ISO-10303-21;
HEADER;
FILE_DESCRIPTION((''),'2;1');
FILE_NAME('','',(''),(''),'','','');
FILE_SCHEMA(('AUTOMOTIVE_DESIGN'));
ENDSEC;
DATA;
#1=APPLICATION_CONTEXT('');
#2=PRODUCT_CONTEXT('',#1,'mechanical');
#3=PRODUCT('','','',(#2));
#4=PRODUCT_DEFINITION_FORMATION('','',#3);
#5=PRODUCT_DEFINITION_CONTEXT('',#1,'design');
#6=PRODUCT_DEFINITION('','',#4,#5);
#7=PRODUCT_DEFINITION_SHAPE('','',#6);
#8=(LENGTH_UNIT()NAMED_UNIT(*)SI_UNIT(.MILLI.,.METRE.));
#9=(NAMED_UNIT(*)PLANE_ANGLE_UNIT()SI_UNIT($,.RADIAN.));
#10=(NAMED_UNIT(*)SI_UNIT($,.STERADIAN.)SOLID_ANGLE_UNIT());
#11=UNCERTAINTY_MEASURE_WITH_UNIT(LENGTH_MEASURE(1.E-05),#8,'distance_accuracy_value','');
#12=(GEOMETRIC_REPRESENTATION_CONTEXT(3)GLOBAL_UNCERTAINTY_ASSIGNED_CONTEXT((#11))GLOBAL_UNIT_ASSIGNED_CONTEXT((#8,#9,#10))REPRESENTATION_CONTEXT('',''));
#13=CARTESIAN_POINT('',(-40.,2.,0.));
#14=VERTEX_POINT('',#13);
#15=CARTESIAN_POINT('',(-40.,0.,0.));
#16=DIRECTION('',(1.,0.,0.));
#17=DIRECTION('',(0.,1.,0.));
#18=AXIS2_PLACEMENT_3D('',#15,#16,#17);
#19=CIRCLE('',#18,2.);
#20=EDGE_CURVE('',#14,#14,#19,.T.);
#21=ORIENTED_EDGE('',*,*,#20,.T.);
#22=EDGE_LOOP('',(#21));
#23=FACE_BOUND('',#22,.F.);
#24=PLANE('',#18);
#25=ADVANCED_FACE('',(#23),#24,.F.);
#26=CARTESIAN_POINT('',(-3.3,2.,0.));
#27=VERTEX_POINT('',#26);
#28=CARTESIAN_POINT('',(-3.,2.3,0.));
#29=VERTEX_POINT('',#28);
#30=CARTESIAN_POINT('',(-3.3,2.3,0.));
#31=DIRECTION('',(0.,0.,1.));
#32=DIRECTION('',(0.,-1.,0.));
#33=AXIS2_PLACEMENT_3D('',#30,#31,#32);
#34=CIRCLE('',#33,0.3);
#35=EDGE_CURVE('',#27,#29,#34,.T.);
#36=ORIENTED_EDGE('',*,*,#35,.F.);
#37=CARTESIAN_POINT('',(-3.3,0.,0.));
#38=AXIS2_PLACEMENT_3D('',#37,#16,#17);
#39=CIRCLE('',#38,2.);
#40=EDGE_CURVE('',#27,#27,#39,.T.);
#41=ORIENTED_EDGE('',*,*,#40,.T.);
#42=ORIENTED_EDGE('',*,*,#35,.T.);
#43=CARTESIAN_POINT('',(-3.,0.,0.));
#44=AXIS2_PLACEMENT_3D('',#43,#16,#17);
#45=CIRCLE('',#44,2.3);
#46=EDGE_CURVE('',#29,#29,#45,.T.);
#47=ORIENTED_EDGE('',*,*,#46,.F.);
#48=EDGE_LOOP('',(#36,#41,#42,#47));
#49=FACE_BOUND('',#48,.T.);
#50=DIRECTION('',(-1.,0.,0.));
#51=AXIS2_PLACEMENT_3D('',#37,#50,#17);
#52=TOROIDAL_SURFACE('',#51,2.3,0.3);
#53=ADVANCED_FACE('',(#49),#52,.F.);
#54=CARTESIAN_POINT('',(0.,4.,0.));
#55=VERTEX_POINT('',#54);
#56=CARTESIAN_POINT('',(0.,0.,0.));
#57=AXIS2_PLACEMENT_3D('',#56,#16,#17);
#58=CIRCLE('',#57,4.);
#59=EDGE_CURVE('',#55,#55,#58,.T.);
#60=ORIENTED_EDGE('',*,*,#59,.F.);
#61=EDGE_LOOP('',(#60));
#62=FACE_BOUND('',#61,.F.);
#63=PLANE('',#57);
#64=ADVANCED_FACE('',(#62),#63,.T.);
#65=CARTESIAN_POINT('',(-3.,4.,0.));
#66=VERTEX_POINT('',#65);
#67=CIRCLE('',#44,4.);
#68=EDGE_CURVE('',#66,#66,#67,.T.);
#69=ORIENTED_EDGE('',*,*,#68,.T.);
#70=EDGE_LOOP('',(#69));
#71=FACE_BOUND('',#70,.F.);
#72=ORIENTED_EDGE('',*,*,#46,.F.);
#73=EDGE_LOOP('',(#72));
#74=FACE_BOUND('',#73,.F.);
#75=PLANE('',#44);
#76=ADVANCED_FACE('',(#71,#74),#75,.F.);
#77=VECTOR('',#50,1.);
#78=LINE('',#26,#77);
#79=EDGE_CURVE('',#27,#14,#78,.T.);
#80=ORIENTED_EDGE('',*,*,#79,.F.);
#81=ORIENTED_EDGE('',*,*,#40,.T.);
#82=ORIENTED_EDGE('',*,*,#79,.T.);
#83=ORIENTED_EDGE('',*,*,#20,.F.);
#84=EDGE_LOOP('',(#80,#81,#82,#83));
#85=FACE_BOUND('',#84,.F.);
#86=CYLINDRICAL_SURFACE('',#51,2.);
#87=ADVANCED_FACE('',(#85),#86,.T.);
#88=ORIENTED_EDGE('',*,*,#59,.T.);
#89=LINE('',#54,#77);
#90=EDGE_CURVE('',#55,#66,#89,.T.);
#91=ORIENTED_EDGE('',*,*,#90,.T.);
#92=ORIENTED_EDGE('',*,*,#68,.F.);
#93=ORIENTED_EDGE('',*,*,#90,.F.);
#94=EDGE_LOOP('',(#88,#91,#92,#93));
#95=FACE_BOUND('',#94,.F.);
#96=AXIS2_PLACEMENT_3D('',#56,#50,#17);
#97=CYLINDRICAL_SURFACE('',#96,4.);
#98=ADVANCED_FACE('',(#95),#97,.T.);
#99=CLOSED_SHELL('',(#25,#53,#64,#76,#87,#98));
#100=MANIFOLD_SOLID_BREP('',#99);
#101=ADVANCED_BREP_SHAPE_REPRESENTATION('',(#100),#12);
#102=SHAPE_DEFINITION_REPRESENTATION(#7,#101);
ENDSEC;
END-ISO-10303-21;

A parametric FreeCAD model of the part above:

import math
import FreeCAD as App
import Part
import Sketcher

doc = App.newDocument("Part")
body = doc.addObject("PartDesign::Body", "Body")

# Sketch on XY plane
sketch1 = body.newObject("Sketcher::SketchObject", "Sketch")
sketch1.AttachmentSupport = (doc.getObject("XY_Plane"), [""])
sketch1.MapMode = "FlatFace"
sketch1.addGeometry([
    Part.LineSegment(App.Vector(-40, 0, 0), App.Vector(0, 0, 0)),  # 0
    Part.LineSegment(App.Vector(0, 0, 0), App.Vector(0, 4, 0)),  # 1
    Part.LineSegment(App.Vector(0, 4, 0), App.Vector(-3, 4, 0)),  # 2
    Part.LineSegment(App.Vector(-3, 4, 0), App.Vector(-3, 2.3, 0)),  # 3
    Part.ArcOfCircle(Part.Circle(App.Vector(-3.3, 2.3, 0), App.Vector(0, 0, 1), 0.3), math.radians(-90), math.radians(0)),  # 4
    Part.LineSegment(App.Vector(-3.3, 2, 0), App.Vector(-40, 2, 0)),  # 5
    Part.LineSegment(App.Vector(-40, 2, 0), App.Vector(-40, 0, 0)),  # 6
], False)
sketch1.addConstraint([
    Sketcher.Constraint("Coincident", 0, 2, 1, 1),
    Sketcher.Constraint("Coincident", 1, 2, 2, 1),
    Sketcher.Constraint("Coincident", 2, 2, 3, 1),
    Sketcher.Constraint("Tangent", 3, 2, 4, 2),
    Sketcher.Constraint("Tangent", 4, 1, 5, 1),
    Sketcher.Constraint("Coincident", 5, 2, 6, 1),
    Sketcher.Constraint("Coincident", 6, 2, 0, 1),
    Sketcher.Constraint("Horizontal", 0),
    Sketcher.Constraint("Vertical", 1),
    Sketcher.Constraint("Horizontal", 2),
    Sketcher.Constraint("Vertical", 3),
    Sketcher.Constraint("Horizontal", 5),
    Sketcher.Constraint("Vertical", 6),
    Sketcher.Constraint("Coincident", 0, 2, -1, 1),
    Sketcher.Constraint("Radius", 4, 0.3),
    Sketcher.Constraint("DistanceX", 0, 1, 0, 2, 40.0),
    Sketcher.Constraint("DistanceX", 2, 2, 2, 1, 3.0),
    Sketcher.Constraint("DistanceY", 1, 1, 1, 2, 4.0),
    Sketcher.Constraint("DistanceY", 6, 2, 6, 1, 2.0),
])
revolution = body.newObject("PartDesign::Revolution", "Revolution")
revolution.Profile = sketch1
revolution.ReferenceAxis = (sketch1, ["H_Axis"])
revolution.Angle = 360

doc.recompute()
